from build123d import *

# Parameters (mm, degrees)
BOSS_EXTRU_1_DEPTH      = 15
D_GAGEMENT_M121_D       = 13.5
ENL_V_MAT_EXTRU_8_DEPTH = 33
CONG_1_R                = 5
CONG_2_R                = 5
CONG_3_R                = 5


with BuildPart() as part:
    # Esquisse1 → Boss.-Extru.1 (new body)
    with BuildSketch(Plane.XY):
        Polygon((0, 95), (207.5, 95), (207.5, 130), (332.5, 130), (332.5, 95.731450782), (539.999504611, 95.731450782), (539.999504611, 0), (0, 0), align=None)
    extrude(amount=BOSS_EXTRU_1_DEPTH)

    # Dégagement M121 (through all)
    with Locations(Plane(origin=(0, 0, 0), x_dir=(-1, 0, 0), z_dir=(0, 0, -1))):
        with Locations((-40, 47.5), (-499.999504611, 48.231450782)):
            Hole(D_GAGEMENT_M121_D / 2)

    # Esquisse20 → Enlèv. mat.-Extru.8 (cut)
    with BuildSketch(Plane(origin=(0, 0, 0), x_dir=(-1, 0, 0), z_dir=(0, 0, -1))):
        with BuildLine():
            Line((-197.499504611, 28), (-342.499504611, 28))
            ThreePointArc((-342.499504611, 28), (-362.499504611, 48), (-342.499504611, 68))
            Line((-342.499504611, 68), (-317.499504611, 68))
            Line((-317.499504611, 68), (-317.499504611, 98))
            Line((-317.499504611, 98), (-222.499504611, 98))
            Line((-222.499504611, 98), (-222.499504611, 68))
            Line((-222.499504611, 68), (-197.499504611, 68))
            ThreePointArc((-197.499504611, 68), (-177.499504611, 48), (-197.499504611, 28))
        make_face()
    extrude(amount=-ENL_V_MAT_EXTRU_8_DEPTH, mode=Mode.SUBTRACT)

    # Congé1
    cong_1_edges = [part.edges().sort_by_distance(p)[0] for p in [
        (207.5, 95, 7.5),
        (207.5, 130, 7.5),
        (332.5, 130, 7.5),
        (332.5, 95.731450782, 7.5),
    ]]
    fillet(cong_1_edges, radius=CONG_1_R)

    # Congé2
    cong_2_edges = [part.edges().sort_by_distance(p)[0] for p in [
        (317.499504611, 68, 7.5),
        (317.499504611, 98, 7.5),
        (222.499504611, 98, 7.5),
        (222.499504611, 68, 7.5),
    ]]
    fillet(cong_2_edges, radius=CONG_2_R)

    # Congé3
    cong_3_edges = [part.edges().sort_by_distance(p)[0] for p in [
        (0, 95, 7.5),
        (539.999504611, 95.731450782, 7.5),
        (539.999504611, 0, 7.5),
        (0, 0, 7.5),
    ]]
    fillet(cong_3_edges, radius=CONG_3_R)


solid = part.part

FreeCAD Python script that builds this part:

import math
import FreeCAD as App
import Part
import Sketcher


def edges_at(feature, points):
    """Names of the edges that pass closest to the given points."""
    edges = feature.Shape.Edges
    near = lambda p: min(range(len(edges)), key=lambda i: edges[i].distToShape(Part.Vertex(*p))[0])
    return sorted({f"Edge{near(p) + 1}" for p in points})


def add_polygon(sketch, points):
    """Adds a closed chain of lines whose ends are joined by coincident constraints."""
    first, n = sketch.GeometryCount, len(points)
    for a, b in zip(points, points[1:] + points[:1]):
        sketch.addGeometry(Part.LineSegment(App.Vector(*a, 0), App.Vector(*b, 0)), False)
    for i in range(n):
        sketch.addConstraint(Sketcher.Constraint("Coincident", first + i, 2, first + (i + 1) % n, 1))

doc = App.newDocument("Part")
body = doc.addObject("PartDesign::Body", "Body")

# Sketch on XY plane
sketch1 = body.newObject("Sketcher::SketchObject", "Sketch")
sketch1.AttachmentSupport = (doc.getObject("XY_Plane"), [""])
sketch1.MapMode = "FlatFace"
add_polygon(sketch1, [(208, 95), (0, 95), (0, 0), (540, 0), (540, 96), (332, 96), (332, 130), (208, 130)])  # lines 0-7
sketch1.addConstraint([
    Sketcher.Constraint("Horizontal", 0),
    Sketcher.Constraint("Vertical", 1),
    Sketcher.Constraint("Horizontal", 2),
    Sketcher.Constraint("Vertical", 3),
    Sketcher.Constraint("Horizontal", 4),
    Sketcher.Constraint("Vertical", 5),
    Sketcher.Constraint("Horizontal", 6),
    Sketcher.Constraint("Vertical", 7),
    Sketcher.Constraint("Coincident", 1, 2, -1, 1),
    Sketcher.Constraint("DistanceX", 6, 2, 6, 1, 125.0),
    Sketcher.Constraint("DistanceY", 1, 2, 1, 1, 95.0),
    Sketcher.Constraint("DistanceY", 7, 2, 7, 1, 35.0),
    Sketcher.Constraint("DistanceX", 0, 2, 0, 1, 207.5),
    Sketcher.Constraint("DistanceY", 3, 1, 3, 2, 95.731451),
    Sketcher.Constraint("DistanceX", 2, 1, 2, 2, 539.999505),
])
pad1 = body.newObject("PartDesign::Pad", "Pad")
pad1.Profile = sketch1
pad1.Length = 15

# Sketch on XY plane
sketch2 = body.newObject("Sketcher::SketchObject", "Sketch001")
sketch2.AttachmentSupport = (doc.getObject("XY_Plane"), [""])
sketch2.MapMode = "FlatFace"
sketch2.addGeometry([
    Part.Circle(App.Vector(40, 48, 0), App.Vector(0, 0, 1), 7),
    Part.Circle(App.Vector(500, 48, 0), App.Vector(0, 0, 1), 7),
], False)
sketch2.addConstraint([
    Sketcher.Constraint("Equal", 0, 1),
    Sketcher.Constraint("Diameter", 0, 13.5),
    Sketcher.Constraint("DistanceX", -1, 1, 0, 3, 40.0),
    Sketcher.Constraint("DistanceY", -1, 1, 0, 3, 47.5),
    Sketcher.Constraint("DistanceY", -1, 1, 1, 3, 48.231451),
    Sketcher.Constraint("DistanceX", -1, 1, 1, 3, 499.999505),
])
doc.recompute()
hole = body.newObject("PartDesign::Hole", "Hole")
hole.Profile = sketch2
hole.ThreadType = "None"
hole.Diameter = 13.5
hole.DepthType = "ThroughAll"
hole.Reversed = True

# Sketch on XY plane
sketch3 = body.newObject("Sketcher::SketchObject", "Sketch002")
sketch3.AttachmentSupport = (doc.getObject("XY_Plane"), [""])
sketch3.MapMode = "FlatFace"
sketch3.addGeometry([
    Part.LineSegment(App.Vector(342, 28, 0), App.Vector(197, 28, 0)),  # 0
    Part.ArcOfCircle(Part.Circle(App.Vector(197, 48, 0), App.Vector(0, 0, 1), 20), math.radians(90), math.radians(270)),  # 1
    Part.LineSegment(App.Vector(197, 68, 0), App.Vector(222, 68, 0)),  # 2
    Part.LineSegment(App.Vector(222, 68, 0), App.Vector(222, 98, 0)),  # 3
    Part.LineSegment(App.Vector(222, 98, 0), App.Vector(317, 98, 0)),  # 4
    Part.LineSegment(App.Vector(317, 98, 0), App.Vector(317, 68, 0)),  # 5
    Part.LineSegment(App.Vector(317, 68, 0), App.Vector(342, 68, 0)),  # 6
    Part.ArcOfCircle(Part.Circle(App.Vector(342, 48, 0), App.Vector(0, 0, 1), 20), math.radians(-90), math.radians(90)),  # 7
], False)
sketch3.addConstraint([
    Sketcher.Constraint("Tangent", 0, 2, 1, 2),
    Sketcher.Constraint("Tangent", 1, 1, 2, 1),
    Sketcher.Constraint("Coincident", 2, 2, 3, 1),
    Sketcher.Constraint("Coincident", 3, 2, 4, 1),
    Sketcher.Constraint("Coincident", 4, 2, 5, 1),
    Sketcher.Constraint("Coincident", 5, 2, 6, 1),
    Sketcher.Constraint("Tangent", 6, 2, 7, 2),
    Sketcher.Constraint("Tangent", 7, 1, 0, 1),
    Sketcher.Constraint("Horizontal", 0),
    Sketcher.Constraint("Horizontal", 2),
    Sketcher.Constraint("Vertical", 3),
    Sketcher.Constraint("Horizontal", 4),
    Sketcher.Constraint("Vertical", 5),
    Sketcher.Constraint("Horizontal", 6),
    Sketcher.Constraint("Equal", 1, 7),
    Sketcher.Constraint("Equal", 2, 6),
    Sketcher.Constraint("Radius", 1, 20.0),
    Sketcher.Constraint("DistanceX", 0, 2, 0, 1, 145.0),
    Sketcher.Constraint("DistanceX", 2, 1, 2, 2, 25.0),
    Sketcher.Constraint("DistanceY", 3, 1, 3, 2, 30.0),
    Sketcher.Constraint("DistanceY", -1, 1, 1, 3, 48.0),
    Sketcher.Constraint("DistanceX", -1, 1, 1, 3, 197.499505),
])
pocket1 = body.newObject("PartDesign::Pocket", "Pocket")
pocket1.Profile = sketch3
pocket1.Length = 33
pocket1.Reversed = True
doc.recompute()

fillet = body.newObject("PartDesign::Fillet", "Fillet")
fillet.Base = (pocket1, edges_at(pocket1, [
    (207.5, 95, 7.5),
    (207.5, 130, 7.5),
    (332.5, 130, 7.5),
    (332.5, 95.731, 7.5),
]))
fillet.Radius = 5
doc.recompute()

fillet2 = body.newObject("PartDesign::Fillet", "Fillet001")
fillet2.Base = (fillet, edges_at(fillet, [
    (317.5, 68, 7.5),
    (317.5, 98, 7.5),
    (222.5, 98, 7.5),
    (222.5, 68, 7.5),
]))
fillet2.Radius = 5
doc.recompute()

fillet3 = body.newObject("PartDesign::Fillet", "Fillet002")
fillet3.Base = (fillet2, edges_at(fillet2, [
    (0, 95, 7.5),
    (540, 95.731, 7.5),
    (540, 0, 7.5),
    (0, 0, 7.5),
]))
fillet3.Radius = 5

doc.recompute()
